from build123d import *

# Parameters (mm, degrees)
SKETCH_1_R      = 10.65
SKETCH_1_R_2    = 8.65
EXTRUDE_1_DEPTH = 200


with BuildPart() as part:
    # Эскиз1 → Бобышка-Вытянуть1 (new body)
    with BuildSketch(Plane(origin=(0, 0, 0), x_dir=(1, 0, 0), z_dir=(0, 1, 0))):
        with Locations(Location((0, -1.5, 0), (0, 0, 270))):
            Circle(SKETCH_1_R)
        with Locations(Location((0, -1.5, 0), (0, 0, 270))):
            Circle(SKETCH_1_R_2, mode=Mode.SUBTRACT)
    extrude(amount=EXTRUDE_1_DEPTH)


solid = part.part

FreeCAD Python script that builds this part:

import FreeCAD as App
import Part
import Sketcher
from FreeCAD import Vector

doc = App.newDocument("Part")
body = doc.addObject("PartDesign::Body", "Body")

sketch1 = doc.addObject("Sketcher::SketchObject", "Sketch")
body.addObject(sketch1)
sketch1.AttachmentSupport = (doc.XZ_Plane, [""])
sketch1.MapMode = "FlatFace"
sketch1.addGeometry(Part.Circle(Vector(0, 2, 0), Vector(0, 0, 1), 11), False)
sketch1.addGeometry(Part.Circle(Vector(0, 2, 0), Vector(0, 0, 1), 9), False)
sketch1.addConstraint(Sketcher.Constraint("Coincident", 1, 3, 0, 3))
sketch1.addConstraint(Sketcher.Constraint("PointOnObject", 0, 3, -2))
sketch1.addConstraint(Sketcher.Constraint("Diameter", 0, 21.3))
sketch1.addConstraint(Sketcher.Constraint("Diameter", 1, 17.3))
sketch1.addConstraint(Sketcher.Constraint("DistanceY", -1, 1, 0, 3, 1.5))
pad1 = doc.addObject("PartDesign::Pad", "Pad")
body.addObject(pad1)
pad1.Profile = sketch1
pad1.Length = 200
pad1.Reversed = True

doc.recompute()
